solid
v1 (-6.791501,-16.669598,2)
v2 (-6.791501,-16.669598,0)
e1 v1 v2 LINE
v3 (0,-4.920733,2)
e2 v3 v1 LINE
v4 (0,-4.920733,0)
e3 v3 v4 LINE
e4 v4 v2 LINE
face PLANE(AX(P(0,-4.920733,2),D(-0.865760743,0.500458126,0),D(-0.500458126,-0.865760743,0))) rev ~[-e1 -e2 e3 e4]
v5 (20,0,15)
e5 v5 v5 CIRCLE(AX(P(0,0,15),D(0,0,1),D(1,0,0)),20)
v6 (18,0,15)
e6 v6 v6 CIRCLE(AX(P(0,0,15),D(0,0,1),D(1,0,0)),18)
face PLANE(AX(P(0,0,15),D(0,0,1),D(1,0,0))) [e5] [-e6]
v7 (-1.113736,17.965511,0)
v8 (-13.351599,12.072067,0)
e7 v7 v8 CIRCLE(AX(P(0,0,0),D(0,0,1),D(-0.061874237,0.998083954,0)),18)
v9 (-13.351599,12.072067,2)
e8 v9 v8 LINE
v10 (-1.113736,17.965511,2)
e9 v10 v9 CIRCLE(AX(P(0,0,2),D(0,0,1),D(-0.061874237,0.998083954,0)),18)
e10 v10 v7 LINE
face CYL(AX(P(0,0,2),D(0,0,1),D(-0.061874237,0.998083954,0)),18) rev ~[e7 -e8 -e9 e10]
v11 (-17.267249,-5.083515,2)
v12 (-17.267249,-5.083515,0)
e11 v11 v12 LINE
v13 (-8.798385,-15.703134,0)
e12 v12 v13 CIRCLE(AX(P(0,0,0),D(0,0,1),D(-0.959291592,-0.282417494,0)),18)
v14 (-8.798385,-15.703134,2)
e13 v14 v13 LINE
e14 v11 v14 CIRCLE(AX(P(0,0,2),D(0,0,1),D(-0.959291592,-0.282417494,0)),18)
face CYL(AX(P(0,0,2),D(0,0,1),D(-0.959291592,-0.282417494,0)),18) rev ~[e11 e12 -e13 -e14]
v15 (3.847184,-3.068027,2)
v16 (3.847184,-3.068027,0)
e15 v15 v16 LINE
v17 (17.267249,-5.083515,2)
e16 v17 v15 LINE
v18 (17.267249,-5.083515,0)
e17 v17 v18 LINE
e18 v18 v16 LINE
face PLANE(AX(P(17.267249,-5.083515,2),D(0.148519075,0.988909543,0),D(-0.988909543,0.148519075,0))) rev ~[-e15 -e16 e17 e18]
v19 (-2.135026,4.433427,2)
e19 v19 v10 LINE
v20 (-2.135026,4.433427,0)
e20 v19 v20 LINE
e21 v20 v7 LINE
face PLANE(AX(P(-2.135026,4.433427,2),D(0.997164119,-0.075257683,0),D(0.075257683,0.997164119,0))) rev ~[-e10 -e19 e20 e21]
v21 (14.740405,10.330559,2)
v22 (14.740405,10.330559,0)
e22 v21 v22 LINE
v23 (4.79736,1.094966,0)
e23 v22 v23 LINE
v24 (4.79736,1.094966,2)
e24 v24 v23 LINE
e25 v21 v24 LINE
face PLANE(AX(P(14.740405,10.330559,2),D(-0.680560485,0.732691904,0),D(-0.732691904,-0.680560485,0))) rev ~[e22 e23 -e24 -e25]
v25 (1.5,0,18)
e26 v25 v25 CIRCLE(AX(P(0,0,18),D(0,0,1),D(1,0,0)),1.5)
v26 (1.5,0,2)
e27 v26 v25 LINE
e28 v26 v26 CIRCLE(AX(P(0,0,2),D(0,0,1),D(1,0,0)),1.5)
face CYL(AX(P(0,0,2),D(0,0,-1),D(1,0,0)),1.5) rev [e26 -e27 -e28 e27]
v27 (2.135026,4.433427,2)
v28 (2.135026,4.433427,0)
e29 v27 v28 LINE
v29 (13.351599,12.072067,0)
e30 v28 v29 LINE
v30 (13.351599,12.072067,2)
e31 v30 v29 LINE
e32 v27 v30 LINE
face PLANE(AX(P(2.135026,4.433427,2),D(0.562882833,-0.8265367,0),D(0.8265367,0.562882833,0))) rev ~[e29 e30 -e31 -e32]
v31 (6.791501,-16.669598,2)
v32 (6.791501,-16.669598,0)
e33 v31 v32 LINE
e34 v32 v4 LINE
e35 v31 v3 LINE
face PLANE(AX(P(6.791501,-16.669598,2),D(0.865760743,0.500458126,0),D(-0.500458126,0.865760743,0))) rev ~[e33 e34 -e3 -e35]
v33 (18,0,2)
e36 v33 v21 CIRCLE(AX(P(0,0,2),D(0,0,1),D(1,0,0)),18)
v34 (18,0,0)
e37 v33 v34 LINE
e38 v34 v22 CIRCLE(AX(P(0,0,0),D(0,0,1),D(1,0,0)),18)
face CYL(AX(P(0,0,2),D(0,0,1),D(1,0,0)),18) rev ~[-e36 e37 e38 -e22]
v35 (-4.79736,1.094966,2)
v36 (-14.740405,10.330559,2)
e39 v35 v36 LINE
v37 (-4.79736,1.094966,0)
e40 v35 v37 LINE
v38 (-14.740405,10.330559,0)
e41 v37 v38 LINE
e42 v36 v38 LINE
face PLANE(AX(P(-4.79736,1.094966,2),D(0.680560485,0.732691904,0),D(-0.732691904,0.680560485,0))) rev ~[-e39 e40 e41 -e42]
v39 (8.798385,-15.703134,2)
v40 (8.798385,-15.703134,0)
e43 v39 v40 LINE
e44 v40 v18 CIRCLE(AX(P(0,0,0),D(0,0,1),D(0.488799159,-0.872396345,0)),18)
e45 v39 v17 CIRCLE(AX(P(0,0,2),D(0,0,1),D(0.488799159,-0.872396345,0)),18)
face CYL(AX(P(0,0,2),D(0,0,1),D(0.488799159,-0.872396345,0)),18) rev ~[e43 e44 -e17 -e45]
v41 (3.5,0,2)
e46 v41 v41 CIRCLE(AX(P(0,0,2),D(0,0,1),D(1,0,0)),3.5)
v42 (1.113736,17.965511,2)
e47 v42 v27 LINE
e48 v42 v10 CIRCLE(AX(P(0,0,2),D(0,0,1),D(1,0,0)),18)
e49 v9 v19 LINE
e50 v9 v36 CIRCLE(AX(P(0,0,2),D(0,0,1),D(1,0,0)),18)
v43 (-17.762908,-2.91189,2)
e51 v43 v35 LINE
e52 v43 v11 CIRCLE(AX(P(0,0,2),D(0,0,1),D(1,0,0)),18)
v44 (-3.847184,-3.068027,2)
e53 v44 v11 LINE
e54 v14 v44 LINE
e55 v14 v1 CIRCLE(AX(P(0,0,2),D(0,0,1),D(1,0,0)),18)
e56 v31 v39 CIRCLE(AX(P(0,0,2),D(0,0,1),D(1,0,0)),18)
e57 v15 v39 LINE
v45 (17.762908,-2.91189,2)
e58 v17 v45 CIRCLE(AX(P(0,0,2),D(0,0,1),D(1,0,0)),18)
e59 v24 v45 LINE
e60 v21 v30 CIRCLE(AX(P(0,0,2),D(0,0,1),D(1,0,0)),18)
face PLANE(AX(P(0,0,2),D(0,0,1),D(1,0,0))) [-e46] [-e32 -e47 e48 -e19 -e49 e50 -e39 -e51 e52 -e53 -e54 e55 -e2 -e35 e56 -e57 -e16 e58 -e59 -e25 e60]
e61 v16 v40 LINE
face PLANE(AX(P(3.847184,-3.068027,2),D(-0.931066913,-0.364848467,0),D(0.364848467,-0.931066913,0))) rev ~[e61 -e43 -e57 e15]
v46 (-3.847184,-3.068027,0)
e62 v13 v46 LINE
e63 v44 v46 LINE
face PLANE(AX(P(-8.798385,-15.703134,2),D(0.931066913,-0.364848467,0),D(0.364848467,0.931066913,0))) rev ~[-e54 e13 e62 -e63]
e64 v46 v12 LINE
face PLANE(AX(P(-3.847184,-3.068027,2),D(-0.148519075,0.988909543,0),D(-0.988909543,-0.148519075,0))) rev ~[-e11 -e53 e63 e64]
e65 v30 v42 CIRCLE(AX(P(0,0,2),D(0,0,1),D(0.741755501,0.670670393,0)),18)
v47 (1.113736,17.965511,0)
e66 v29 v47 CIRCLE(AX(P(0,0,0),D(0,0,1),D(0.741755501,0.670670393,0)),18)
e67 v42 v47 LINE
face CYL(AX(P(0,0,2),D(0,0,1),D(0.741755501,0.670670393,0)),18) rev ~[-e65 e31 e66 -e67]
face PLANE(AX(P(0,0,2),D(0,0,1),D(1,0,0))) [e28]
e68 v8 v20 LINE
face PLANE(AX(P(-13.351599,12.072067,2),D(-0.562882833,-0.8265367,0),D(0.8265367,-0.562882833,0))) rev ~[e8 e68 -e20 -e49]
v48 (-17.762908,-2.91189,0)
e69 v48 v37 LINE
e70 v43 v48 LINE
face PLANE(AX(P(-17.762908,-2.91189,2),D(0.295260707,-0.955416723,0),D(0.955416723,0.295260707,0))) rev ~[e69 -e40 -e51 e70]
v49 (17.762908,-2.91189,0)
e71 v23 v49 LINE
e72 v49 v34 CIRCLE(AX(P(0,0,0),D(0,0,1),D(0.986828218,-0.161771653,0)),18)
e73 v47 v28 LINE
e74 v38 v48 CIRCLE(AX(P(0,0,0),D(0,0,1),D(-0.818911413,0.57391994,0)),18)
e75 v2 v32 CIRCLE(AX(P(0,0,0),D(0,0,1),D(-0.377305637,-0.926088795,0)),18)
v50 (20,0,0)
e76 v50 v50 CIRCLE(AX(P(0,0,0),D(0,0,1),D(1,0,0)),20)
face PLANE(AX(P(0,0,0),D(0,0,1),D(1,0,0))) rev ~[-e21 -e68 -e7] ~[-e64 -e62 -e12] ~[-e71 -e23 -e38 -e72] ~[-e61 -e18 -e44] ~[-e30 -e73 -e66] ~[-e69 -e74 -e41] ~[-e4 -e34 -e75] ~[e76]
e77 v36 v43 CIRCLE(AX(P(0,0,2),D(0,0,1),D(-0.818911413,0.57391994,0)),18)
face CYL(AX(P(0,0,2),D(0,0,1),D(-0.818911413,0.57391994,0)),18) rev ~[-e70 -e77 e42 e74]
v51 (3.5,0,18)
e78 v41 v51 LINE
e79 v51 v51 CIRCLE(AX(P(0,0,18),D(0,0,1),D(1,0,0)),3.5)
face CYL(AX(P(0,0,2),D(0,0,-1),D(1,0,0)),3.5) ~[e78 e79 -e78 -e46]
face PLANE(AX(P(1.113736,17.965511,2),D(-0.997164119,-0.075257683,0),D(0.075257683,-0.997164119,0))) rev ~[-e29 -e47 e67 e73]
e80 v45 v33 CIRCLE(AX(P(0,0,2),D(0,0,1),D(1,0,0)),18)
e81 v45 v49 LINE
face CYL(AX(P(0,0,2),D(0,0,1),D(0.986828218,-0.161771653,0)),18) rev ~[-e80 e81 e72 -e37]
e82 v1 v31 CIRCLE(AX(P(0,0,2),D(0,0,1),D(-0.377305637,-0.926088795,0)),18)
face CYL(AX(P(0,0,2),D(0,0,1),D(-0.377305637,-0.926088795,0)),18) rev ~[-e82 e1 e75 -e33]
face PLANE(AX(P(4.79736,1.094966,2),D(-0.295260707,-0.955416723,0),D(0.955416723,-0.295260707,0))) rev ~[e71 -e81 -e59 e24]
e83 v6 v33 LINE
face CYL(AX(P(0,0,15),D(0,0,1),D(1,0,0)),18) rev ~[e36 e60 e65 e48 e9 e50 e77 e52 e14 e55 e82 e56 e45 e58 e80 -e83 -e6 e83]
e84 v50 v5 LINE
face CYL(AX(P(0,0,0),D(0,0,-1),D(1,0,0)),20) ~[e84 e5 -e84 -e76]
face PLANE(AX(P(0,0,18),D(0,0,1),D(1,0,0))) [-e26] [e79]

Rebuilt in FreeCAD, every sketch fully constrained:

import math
import FreeCAD as App
import Part
import Sketcher
from FreeCAD import Vector
Q = App.Units.Quantity

doc = App.newDocument("Part")
body = doc.addObject("PartDesign::Body", "Body")

# Sketch on XY plane
sketch1 = body.newObject("Sketcher::SketchObject", "Sketch")
sketch1.AttachmentSupport = (doc.getObject("XY_Plane"), [""])
sketch1.MapMode = "FlatFace"
sketch1.addGeometry(Part.Circle(Vector(0, 0, 0), Vector(0, 0, 1), 20), False)
sketch1.addConstraint(Sketcher.Constraint("Coincident", 0, 3, -1, 1))
sketch1.addConstraint(Sketcher.Constraint("Diameter", 0, Q("40 mm")))
pad1 = body.newObject("PartDesign::Pad", "Pad")
pad1.Profile = sketch1
pad1.Length = 15

# Sketch on XY plane
sketch2 = body.newObject("Sketcher::SketchObject", "Sketch001")
sketch2.AttachmentSupport = (doc.getObject("XY_Plane"), [""])
sketch2.MapMode = "FlatFace"
sketch2.AttachmentOffset = App.Placement(Vector(0, 0, 15), App.Rotation())
sketch2.addGeometry(Part.Circle(Vector(0, 0, 0), Vector(0, 0, 1), 18), False)
sketch2.addConstraint(Sketcher.Constraint("Coincident", 0, 3, -1, 1))
sketch2.addConstraint(Sketcher.Constraint("Diameter", 0, Q("36 mm")))
pocket1 = body.newObject("PartDesign::Pocket", "Pocket")
pocket1.Profile = sketch2
pocket1.Length = 13

# Sketch on XY plane
sketch3 = body.newObject("Sketcher::SketchObject", "Sketch002")
sketch3.AttachmentSupport = (doc.getObject("XY_Plane"), [""])
sketch3.MapMode = "FlatFace"
sketch3.AttachmentOffset = App.Placement(Vector(0, 0, 2), App.Rotation())
sketch3.addGeometry(Part.Circle(Vector(0, 0, 0), Vector(0, 0, 1), 3.5), False)
sketch3.addGeometry(Part.Circle(Vector(0, 0, 0), Vector(0, 0, 1), 1.5), False)
sketch3.addConstraint(Sketcher.Constraint("Coincident", 0, 3, -1, 1))
sketch3.addConstraint(Sketcher.Constraint("Coincident", 1, 3, -1, 1))
sketch3.addConstraint(Sketcher.Constraint("Diameter", 0, Q("7 mm")))
sketch3.addConstraint(Sketcher.Constraint("Diameter", 1, Q("3 mm")))
pad2 = body.newObject("PartDesign::Pad", "Pad001")
pad2.Profile = sketch3
pad2.Length = 16

# Sketch on XY plane
sketch4 = body.newObject("Sketcher::SketchObject", "Sketch003")
sketch4.AttachmentSupport = (doc.getObject("XY_Plane"), [""])
sketch4.MapMode = "FlatFace"
sketch4.AttachmentOffset = App.Placement(Vector(0, 0, 2), App.Rotation())
sketch4.addGeometry(Part.LineSegment(Vector(-3.8, -3.1, 0), Vector(-17.3, -5.1, 0)), False)
sketch4.addGeometry(Part.ArcOfCircle(Part.Circle(Vector(0, 0, 0), Vector(0, 0, 1), 18), math.radians(-164), math.radians(-119)), False)
sketch4.addGeometry(Part.LineSegment(Vector(-8.8, -15.7, 0), Vector(-3.8, -3.1, 0)), False)
sketch4.addGeometry(Part.LineSegment(Vector(0, -4.9, 0), Vector(-6.8, -16.7, 0)), False)
sketch4.addGeometry(Part.ArcOfCircle(Part.Circle(Vector(0, 0, 0), Vector(0, 0, 1), 18), math.radians(-112), math.radians(-68)), False)
sketch4.addGeometry(Part.LineSegment(Vector(6.8, -16.7, 0), Vector(0, -4.9, 0)), False)
sketch4.addGeometry(Part.LineSegment(Vector(-4.8, 1.1, 0), Vector(-14.7, 10.3, 0)), False)
sketch4.addGeometry(Part.ArcOfCircle(Part.Circle(Vector(0, 0, 0), Vector(0, 0, 1), 18), math.radians(145), math.radians(189)), False)
sketch4.addGeometry(Part.LineSegment(Vector(-17.8, -2.9, 0), Vector(-4.8, 1.1, 0)), False)
sketch4.addGeometry(Part.LineSegment(Vector(-2.1, 4.4, 0), Vector(-1.1, 18, 0)), False)
sketch4.addGeometry(Part.ArcOfCircle(Part.Circle(Vector(0, 0, 0), Vector(0, 0, 1), 18), math.radians(94), math.radians(138)), False)
sketch4.addGeometry(Part.LineSegment(Vector(-13.4, 12.1, 0), Vector(-2.1, 4.4, 0)), False)
sketch4.addGeometry(Part.ArcOfCircle(Part.Circle(Vector(0, 0, 0), Vector(0, 0, 1), 18), math.radians(42), math.radians(86)), False)
sketch4.addGeometry(Part.LineSegment(Vector(1.1, 18, 0), Vector(2.1, 4.4, 0)), False)
sketch4.addGeometry(Part.LineSegment(Vector(2.1, 4.4, 0), Vector(13.4, 12.1, 0)), False)
sketch4.addGeometry(Part.ArcOfCircle(Part.Circle(Vector(0, 0, 0), Vector(0, 0, 1), 18), math.radians(0), math.radians(35)), False)
sketch4.addGeometry(Part.LineSegment(Vector(14.7, 10.3, 0), Vector(4.8, 1.1, 0)), False)
sketch4.addGeometry(Part.LineSegment(Vector(4.8, 1.1, 0), Vector(17.8, -2.9, 0)), False)
sketch4.addGeometry(Part.ArcOfCircle(Part.Circle(Vector(0, 0, 0), Vector(0, 0, 1), 18), math.radians(-9.31), math.radians(0)), False)
sketch4.addGeometry(Part.ArcOfCircle(Part.Circle(Vector(0, 0, 0), Vector(0, 0, 1), 18), math.radians(-61), math.radians(-16)), False)
sketch4.addGeometry(Part.LineSegment(Vector(17.3, -5.1, 0), Vector(3.8, -3.1, 0)), False)
sketch4.addGeometry(Part.LineSegment(Vector(3.8, -3.1, 0), Vector(8.8, -15.7, 0)), False)
sketch4.addConstraint(Sketcher.Constraint("Coincident", 0, 2, 1, 1))
sketch4.addConstraint(Sketcher.Constraint("Coincident", 1, 2, 2, 1))
sketch4.addConstraint(Sketcher.Constraint("Coincident", 2, 2, 0, 1))
sketch4.addConstraint(Sketcher.Constraint("Coincident", 3, 2, 4, 1))
sketch4.addConstraint(Sketcher.Constraint("Coincident", 4, 2, 5, 1))
sketch4.addConstraint(Sketcher.Constraint("Coincident", 5, 2, 3, 1))
sketch4.addConstraint(Sketcher.Constraint("Coincident", 6, 2, 7, 1))
sketch4.addConstraint(Sketcher.Constraint("Coincident", 7, 2, 8, 1))
sketch4.addConstraint(Sketcher.Constraint("Coincident", 8, 2, 6, 1))
sketch4.addConstraint(Sketcher.Constraint("Coincident", 9, 2, 10, 1))
sketch4.addConstraint(Sketcher.Constraint("Coincident", 10, 2, 11, 1))
sketch4.addConstraint(Sketcher.Constraint("Coincident", 11, 2, 9, 1))
sketch4.addConstraint(Sketcher.Constraint("Coincident", 12, 2, 13, 1))
sketch4.addConstraint(Sketcher.Constraint("Coincident", 13, 2, 14, 1))
sketch4.addConstraint(Sketcher.Constraint("Coincident", 14, 2, 12, 1))
sketch4.addConstraint(Sketcher.Constraint("Coincident", 15, 2, 16, 1))
sketch4.addConstraint(Sketcher.Constraint("Coincident", 16, 2, 17, 1))
sketch4.addConstraint(Sketcher.Constraint("Coincident", 17, 2, 18, 1))
sketch4.addConstraint(Sketcher.Constraint("Tangent", 18, 2, 15, 1))
sketch4.addConstraint(Sketcher.Constraint("Coincident", 19, 2, 20, 1))
sketch4.addConstraint(Sketcher.Constraint("Coincident", 20, 2, 21, 1))
sketch4.addConstraint(Sketcher.Constraint("Coincident", 21, 2, 19, 1))
sketch4.addConstraint(Sketcher.Constraint("Coincident", 1, 3, -1, 1))
sketch4.addConstraint(Sketcher.Constraint("Coincident", 4, 3, -1, 1))
sketch4.addConstraint(Sketcher.Constraint("Coincident", 7, 3, -1, 1))
sketch4.addConstraint(Sketcher.Constraint("Coincident", 10, 3, -1, 1))
sketch4.addConstraint(Sketcher.Constraint("Coincident", 12, 3, -1, 1))
sketch4.addConstraint(Sketcher.Constraint("Coincident", 15, 3, -1, 1))
sketch4.addConstraint(Sketcher.Constraint("Coincident", 19, 3, -1, 1))
sketch4.addConstraint(Sketcher.Constraint("Equal", 1, 4))
sketch4.addConstraint(Sketcher.Constraint("Equal", 4, 7))
sketch4.addConstraint(Sketcher.Constraint("Equal", 7, 10))
sketch4.addConstraint(Sketcher.Constraint("Equal", 10, 12))
sketch4.addConstraint(Sketcher.Constraint("Equal", 12, 15))
sketch4.addConstraint(Sketcher.Constraint("Equal", 15, 18))
sketch4.addConstraint(Sketcher.Constraint("Equal", 18, 19))
sketch4.addConstraint(Sketcher.Constraint("Symmetric", 11, 2, 13, 2, -2))
sketch4.addConstraint(Sketcher.Constraint("Symmetric", 8, 2, 16, 2, -2))
sketch4.addConstraint(Sketcher.Constraint("Symmetric", 2, 2, 20, 2, -2))
sketch4.addConstraint(Sketcher.Constraint("PointOnObject", 5, 2, -2))
sketch4.addConstraint(Sketcher.Constraint("PointOnObject", 18, 2, -1))
sketch4.addConstraint(Sketcher.Constraint("Horizontal", 3, 2, 4, 2))
sketch4.addConstraint(Sketcher.Constraint("Horizontal", 9, 2, 12, 2))
sketch4.addConstraint(Sketcher.Constraint("Horizontal", 10, 2, 14, 2))
sketch4.addConstraint(Sketcher.Constraint("Horizontal", 6, 2, 15, 2))
sketch4.addConstraint(Sketcher.Constraint("Horizontal", 7, 2, 17, 2))
sketch4.addConstraint(Sketcher.Constraint("Horizontal", 0, 2, 19, 2))
sketch4.addConstraint(Sketcher.Constraint("Horizontal", 1, 2, 21, 2))
sketch4.addConstraint(Sketcher.Constraint("Equal", 0, 2))
sketch4.addConstraint(Sketcher.Constraint("Equal", 2, 3))
sketch4.addConstraint(Sketcher.Constraint("Equal", 5, 6))
sketch4.addConstraint(Sketcher.Constraint("Equal", 6, 8))
sketch4.addConstraint(Sketcher.Constraint("Equal", 8, 9))
sketch4.addConstraint(Sketcher.Constraint("Equal", 9, 11))
sketch4.addConstraint(Sketcher.Constraint("Radius", 1, Q("18 mm")))
sketch4.addConstraint(Sketcher.Constraint("DistanceX", 3, 2, -1, 1, Q("6.791501 mm")))
sketch4.addConstraint(Sketcher.Constraint("DistanceX", 10, 2, -1, 1, Q("13.351599 mm")))
sketch4.addConstraint(Sketcher.Constraint("DistanceY", 8, 2, 10, 2, Q("10.977101 mm")))
sketch4.addConstraint(Sketcher.Constraint("DistanceX", 20, 2, 21, 2, Q("4.951201 mm")))
sketch4.addConstraint(Sketcher.Constraint("DistanceY", 21, 2, 5, 2, Q("10.782402 mm")))
sketch4.addConstraint(Sketcher.Constraint("Distance", 0, Q("13.570569 mm")))
sketch4.addConstraint(Sketcher.Constraint("DistanceY", -1, 1, 6, 2, Q("10.330559 mm")))
sketch4.addConstraint(Sketcher.Constraint("DistanceY", -1, 1, 9, 2, Q("17.965511 mm")))
pocket2 = body.newObject("PartDesign::Pocket", "Pocket001")
pocket2.Profile = sketch4
pocket2.Length = 2

doc.recompute()
